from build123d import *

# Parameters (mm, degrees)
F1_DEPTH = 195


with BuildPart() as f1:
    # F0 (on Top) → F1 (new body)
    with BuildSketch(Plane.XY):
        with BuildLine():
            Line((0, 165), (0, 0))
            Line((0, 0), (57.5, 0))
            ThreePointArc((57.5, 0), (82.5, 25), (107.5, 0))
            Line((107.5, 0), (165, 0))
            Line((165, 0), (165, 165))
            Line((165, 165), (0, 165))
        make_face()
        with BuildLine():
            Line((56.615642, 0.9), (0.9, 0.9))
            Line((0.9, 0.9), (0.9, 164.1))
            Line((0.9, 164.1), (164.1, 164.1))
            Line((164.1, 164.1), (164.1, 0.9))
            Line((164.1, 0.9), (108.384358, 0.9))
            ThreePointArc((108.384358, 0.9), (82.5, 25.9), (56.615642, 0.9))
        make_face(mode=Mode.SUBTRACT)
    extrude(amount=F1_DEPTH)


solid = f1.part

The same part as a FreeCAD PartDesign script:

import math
import FreeCAD as App
import Part
import Sketcher
Q = App.Units.Quantity

doc = App.newDocument("Part")
body = doc.addObject("PartDesign::Body", "Body")

# Sketch on XY plane
sketch1 = doc.addObject("Sketcher::SketchObject", "Sketch")
body.addObject(sketch1)
sketch1.AttachmentSupport = (doc.XY_Plane, [""])
sketch1.MapMode = "FlatFace"
sketch1.addGeometry(Part.LineSegment(App.Vector(0, 165, 0), App.Vector(0, 0, 0)), False)
sketch1.addGeometry(Part.LineSegment(App.Vector(0, 0, 0), App.Vector(58, 0, 0)), False)
sketch1.addGeometry(Part.ArcOfCircle(Part.Circle(App.Vector(82, 0, 0), App.Vector(0, 0, 1), 25), math.radians(0), math.radians(180)), False)
sketch1.addGeometry(Part.LineSegment(App.Vector(108, 0, 0), App.Vector(165, 0, 0)), False)
sketch1.addGeometry(Part.LineSegment(App.Vector(165, 0, 0), App.Vector(165, 165, 0)), False)
sketch1.addGeometry(Part.LineSegment(App.Vector(165, 165, 0), App.Vector(0, 165, 0)), False)
sketch1.addGeometry(Part.ArcOfCircle(Part.Circle(App.Vector(82, 0, 0), App.Vector(0, 0, 1), 26), math.radians(2), math.radians(178)), False)
sketch1.addGeometry(Part.LineSegment(App.Vector(57, 1, 0), App.Vector(1, 1, 0)), False)
sketch1.addGeometry(Part.LineSegment(App.Vector(1, 1, 0), App.Vector(1, 164, 0)), False)
sketch1.addGeometry(Part.LineSegment(App.Vector(1, 164, 0), App.Vector(164, 164, 0)), False)
sketch1.addGeometry(Part.LineSegment(App.Vector(164, 164, 0), App.Vector(164, 1, 0)), False)
sketch1.addGeometry(Part.LineSegment(App.Vector(164, 1, 0), App.Vector(108, 1, 0)), False)
sketch1.addConstraint(Sketcher.Constraint("Coincident", 0, 2, 1, 1))
sketch1.addConstraint(Sketcher.Constraint("Coincident", 1, 2, 2, 2))
sketch1.addConstraint(Sketcher.Constraint("Coincident", 2, 1, 3, 1))
sketch1.addConstraint(Sketcher.Constraint("Coincident", 3, 2, 4, 1))
sketch1.addConstraint(Sketcher.Constraint("Coincident", 4, 2, 5, 1))
sketch1.addConstraint(Sketcher.Constraint("Coincident", 5, 2, 0, 1))
sketch1.addConstraint(Sketcher.Constraint("Coincident", 6, 2, 7, 1))
sketch1.addConstraint(Sketcher.Constraint("Coincident", 7, 2, 8, 1))
sketch1.addConstraint(Sketcher.Constraint("Coincident", 8, 2, 9, 1))
sketch1.addConstraint(Sketcher.Constraint("Coincident", 9, 2, 10, 1))
sketch1.addConstraint(Sketcher.Constraint("Coincident", 10, 2, 11, 1))
sketch1.addConstraint(Sketcher.Constraint("Coincident", 11, 2, 6, 1))
sketch1.addConstraint(Sketcher.Constraint("Vertical", 0))
sketch1.addConstraint(Sketcher.Constraint("Horizontal", 1))
sketch1.addConstraint(Sketcher.Constraint("Horizontal", 3))
sketch1.addConstraint(Sketcher.Constraint("Vertical", 4))
sketch1.addConstraint(Sketcher.Constraint("Horizontal", 5))
sketch1.addConstraint(Sketcher.Constraint("Horizontal", 7))
sketch1.addConstraint(Sketcher.Constraint("Vertical", 8))
sketch1.addConstraint(Sketcher.Constraint("Horizontal", 9))
sketch1.addConstraint(Sketcher.Constraint("Vertical", 10))
sketch1.addConstraint(Sketcher.Constraint("Horizontal", 11))
sketch1.addConstraint(Sketcher.Constraint("Coincident", 0, 2, -1, 1))
sketch1.addConstraint(Sketcher.Constraint("Coincident", 6, 3, 2, 3))
sketch1.addConstraint(Sketcher.Constraint("PointOnObject", 2, 3, -1))
sketch1.addConstraint(Sketcher.Constraint("PointOnObject", 2, 1, -1))
sketch1.addConstraint(Sketcher.Constraint("Horizontal", 7, 2, 10, 2))
sketch1.addConstraint(Sketcher.Constraint("Equal", 1, 3))
sketch1.addConstraint(Sketcher.Constraint("Equal", 7, 11))
sketch1.addConstraint(Sketcher.Constraint("Equal", 5, 0))
sketch1.addConstraint(Sketcher.Constraint("Equal", 9, 8))
sketch1.addConstraint(Sketcher.Constraint("Radius", 2, Q("25 mm")))
sketch1.addConstraint(Sketcher.Constraint("Radius", 6, Q("25.9 mm")))
sketch1.addConstraint(Sketcher.Constraint("DistanceX", 5, 2, 5, 1, Q("165 mm")))
sketch1.addConstraint(Sketcher.Constraint("DistanceX", 9, 1, 9, 2, Q("163.2 mm")))
sketch1.addConstraint(Sketcher.Constraint("DistanceY", -1, 1, 6, 2, Q("0.9 mm")))
pad1 = doc.addObject("PartDesign::Pad", "Pad")
body.addObject(pad1)
pad1.Profile = sketch1
pad1.Length = 195

doc.recompute()
